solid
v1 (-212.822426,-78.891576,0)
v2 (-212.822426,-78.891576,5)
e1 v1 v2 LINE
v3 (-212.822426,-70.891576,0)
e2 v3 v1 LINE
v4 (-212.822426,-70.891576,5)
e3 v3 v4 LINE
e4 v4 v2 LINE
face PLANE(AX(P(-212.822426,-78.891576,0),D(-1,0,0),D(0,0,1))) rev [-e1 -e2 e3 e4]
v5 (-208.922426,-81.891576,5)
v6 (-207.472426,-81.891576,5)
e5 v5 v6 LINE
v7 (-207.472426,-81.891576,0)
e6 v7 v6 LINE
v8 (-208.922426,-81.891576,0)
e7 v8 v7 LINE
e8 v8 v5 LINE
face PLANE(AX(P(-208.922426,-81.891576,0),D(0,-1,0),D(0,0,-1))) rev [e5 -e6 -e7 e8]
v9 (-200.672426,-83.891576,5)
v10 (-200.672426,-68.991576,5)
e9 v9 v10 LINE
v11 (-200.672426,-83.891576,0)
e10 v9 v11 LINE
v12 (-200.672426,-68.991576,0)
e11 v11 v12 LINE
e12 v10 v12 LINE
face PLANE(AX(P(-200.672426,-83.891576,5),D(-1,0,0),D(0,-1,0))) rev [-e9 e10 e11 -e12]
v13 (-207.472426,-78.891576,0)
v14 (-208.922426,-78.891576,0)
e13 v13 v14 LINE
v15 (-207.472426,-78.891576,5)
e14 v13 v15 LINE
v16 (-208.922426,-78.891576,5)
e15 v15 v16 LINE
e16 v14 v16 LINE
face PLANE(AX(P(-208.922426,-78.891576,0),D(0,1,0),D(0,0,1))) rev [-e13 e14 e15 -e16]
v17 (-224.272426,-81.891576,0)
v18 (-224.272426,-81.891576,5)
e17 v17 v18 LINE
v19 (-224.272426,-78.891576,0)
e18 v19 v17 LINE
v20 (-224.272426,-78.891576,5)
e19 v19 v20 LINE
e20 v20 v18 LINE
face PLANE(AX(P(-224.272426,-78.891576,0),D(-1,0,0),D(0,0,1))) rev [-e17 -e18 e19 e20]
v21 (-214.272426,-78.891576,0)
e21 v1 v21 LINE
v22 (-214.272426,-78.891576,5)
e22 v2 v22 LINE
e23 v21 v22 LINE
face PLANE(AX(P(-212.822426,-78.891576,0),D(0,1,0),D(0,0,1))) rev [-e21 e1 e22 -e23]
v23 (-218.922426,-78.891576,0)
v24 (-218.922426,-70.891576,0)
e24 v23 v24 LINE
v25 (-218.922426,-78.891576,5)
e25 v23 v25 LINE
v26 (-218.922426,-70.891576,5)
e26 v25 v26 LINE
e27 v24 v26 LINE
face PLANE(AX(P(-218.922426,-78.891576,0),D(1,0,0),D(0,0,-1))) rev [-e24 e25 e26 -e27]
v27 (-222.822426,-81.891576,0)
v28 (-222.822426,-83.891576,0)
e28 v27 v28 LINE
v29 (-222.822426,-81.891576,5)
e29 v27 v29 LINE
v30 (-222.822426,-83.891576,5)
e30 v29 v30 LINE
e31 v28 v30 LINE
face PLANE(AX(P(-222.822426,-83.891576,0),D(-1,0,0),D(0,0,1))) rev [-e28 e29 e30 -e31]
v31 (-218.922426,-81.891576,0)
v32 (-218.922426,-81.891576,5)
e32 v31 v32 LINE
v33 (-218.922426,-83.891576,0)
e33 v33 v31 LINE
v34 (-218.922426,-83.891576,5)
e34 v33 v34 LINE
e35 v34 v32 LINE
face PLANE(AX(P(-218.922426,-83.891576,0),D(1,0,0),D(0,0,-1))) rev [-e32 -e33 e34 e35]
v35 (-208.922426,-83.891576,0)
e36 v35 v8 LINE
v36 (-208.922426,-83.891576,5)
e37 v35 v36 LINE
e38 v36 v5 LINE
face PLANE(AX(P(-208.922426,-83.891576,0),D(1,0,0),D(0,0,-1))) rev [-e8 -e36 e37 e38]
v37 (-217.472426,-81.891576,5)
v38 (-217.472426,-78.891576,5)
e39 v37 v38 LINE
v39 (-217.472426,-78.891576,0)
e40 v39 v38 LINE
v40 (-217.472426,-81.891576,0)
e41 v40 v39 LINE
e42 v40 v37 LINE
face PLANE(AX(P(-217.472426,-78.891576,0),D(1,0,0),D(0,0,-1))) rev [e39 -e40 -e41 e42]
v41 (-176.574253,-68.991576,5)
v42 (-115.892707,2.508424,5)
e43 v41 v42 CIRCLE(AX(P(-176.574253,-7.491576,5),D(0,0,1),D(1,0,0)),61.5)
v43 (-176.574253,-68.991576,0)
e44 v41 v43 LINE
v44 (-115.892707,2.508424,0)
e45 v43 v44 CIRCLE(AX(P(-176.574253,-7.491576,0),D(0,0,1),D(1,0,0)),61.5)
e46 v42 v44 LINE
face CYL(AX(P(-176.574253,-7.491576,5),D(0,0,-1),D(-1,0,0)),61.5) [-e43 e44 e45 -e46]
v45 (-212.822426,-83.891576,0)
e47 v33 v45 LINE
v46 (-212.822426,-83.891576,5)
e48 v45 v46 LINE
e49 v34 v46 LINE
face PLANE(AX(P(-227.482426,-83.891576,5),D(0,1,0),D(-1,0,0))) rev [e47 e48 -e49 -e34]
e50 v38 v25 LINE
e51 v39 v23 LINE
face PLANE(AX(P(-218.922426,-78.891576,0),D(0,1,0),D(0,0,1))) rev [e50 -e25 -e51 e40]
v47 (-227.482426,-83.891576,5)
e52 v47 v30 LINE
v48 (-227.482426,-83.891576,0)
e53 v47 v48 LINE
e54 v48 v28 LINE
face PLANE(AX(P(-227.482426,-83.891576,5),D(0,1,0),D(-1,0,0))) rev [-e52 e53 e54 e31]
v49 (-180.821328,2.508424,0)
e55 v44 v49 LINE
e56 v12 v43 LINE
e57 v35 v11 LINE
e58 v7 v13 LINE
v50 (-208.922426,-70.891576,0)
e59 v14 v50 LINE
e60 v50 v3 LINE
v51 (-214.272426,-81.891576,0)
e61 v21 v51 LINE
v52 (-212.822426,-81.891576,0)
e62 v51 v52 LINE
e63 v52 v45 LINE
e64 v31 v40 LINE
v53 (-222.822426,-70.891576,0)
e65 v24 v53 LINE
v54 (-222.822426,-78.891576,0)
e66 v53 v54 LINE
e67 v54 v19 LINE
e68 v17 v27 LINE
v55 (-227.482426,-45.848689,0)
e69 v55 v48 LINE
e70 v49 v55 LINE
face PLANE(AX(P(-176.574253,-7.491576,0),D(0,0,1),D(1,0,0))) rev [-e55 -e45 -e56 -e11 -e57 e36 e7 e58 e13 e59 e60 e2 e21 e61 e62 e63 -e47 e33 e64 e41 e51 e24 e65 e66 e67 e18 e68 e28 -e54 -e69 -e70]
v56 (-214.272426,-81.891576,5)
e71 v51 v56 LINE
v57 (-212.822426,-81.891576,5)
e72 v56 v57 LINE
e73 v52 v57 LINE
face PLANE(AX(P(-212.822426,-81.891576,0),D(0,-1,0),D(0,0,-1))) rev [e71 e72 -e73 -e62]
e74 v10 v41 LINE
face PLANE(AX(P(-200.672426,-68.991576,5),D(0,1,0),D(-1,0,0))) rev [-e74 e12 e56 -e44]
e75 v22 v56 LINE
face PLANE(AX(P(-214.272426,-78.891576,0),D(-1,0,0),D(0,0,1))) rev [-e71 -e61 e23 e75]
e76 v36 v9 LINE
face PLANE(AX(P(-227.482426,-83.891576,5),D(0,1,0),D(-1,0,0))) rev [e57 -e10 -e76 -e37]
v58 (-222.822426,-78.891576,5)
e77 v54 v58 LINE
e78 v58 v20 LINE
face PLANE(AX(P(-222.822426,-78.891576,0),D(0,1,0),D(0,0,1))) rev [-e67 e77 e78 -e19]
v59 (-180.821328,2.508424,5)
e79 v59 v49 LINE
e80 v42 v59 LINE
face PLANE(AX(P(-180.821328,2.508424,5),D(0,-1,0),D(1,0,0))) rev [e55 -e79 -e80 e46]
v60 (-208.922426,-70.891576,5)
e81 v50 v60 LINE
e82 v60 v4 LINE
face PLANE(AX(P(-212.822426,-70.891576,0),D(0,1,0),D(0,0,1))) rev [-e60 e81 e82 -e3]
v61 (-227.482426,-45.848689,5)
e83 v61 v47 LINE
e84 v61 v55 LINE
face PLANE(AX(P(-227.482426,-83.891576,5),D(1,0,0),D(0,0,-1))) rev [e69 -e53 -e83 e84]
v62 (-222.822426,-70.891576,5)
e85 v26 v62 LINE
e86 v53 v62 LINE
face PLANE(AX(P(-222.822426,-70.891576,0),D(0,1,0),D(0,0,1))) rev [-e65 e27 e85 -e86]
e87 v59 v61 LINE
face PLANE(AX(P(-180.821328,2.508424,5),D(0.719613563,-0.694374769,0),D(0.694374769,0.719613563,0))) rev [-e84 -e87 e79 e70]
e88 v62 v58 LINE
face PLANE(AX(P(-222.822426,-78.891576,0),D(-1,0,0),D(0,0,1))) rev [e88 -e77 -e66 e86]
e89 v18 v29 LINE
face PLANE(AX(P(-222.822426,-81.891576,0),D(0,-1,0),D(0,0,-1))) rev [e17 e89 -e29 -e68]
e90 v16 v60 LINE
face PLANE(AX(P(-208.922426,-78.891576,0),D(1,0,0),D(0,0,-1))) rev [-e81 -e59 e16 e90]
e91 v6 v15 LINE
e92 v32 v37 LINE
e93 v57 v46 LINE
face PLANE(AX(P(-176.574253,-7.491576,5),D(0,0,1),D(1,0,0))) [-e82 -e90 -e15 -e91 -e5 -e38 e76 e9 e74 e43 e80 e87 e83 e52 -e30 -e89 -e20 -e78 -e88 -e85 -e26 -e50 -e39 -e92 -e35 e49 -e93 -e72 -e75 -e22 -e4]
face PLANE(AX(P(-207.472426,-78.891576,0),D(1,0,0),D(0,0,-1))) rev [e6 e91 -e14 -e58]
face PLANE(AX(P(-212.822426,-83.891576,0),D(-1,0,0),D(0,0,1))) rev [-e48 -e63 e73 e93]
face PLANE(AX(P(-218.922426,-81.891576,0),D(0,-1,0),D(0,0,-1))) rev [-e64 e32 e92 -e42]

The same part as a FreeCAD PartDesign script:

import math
import FreeCAD as App
import Part
import Sketcher

V = App.Vector
Q = App.Units.Quantity


def add_polygon(sketch, points):
    """Adds a closed chain of lines whose ends are joined by coincident constraints."""
    first, n = sketch.GeometryCount, len(points)
    for a, b in zip(points, points[1:] + points[:1]):
        sketch.addGeometry(Part.LineSegment(App.Vector(*a, 0), App.Vector(*b, 0)), False)
    for i in range(n):
        sketch.addConstraint(Sketcher.Constraint("Coincident", first + i, 2, first + (i + 1) % n, 1))

doc = App.newDocument("Part")
body = doc.addObject("PartDesign::Body", "Body")

# Sketch on XY plane
sketch1 = doc.addObject("Sketcher::SketchObject", "Sketch")
body.addObject(sketch1)
sketch1.AttachmentSupport = (doc.XY_Plane, [""])
sketch1.MapMode = "FlatFace"
sketch1.addGeometry(Part.LineSegment(V(-227, -84, 0), V(-201, -84, 0)), False)
sketch1.addGeometry(Part.LineSegment(V(-201, -84, 0), V(-201, -69, 0)), False)
sketch1.addGeometry(Part.LineSegment(V(-201, -69, 0), V(-177, -69, 0)), False)
sketch1.addGeometry(Part.ArcOfCircle(Part.Circle(V(-177, -7, 0), V(0, 0, 1), 62), math.radians(-90), math.radians(9)), False)
sketch1.addGeometry(Part.LineSegment(V(-116, 3, 0), V(-181, 3, 0)), False)
sketch1.addGeometry(Part.LineSegment(V(-181, 3, 0), V(-227, -46, 0)), False)
sketch1.addGeometry(Part.LineSegment(V(-227, -46, 0), V(-227, -84, 0)), False)
sketch1.addConstraint(Sketcher.Constraint("Coincident", 0, 2, 1, 1))
sketch1.addConstraint(Sketcher.Constraint("Coincident", 1, 2, 2, 1))
sketch1.addConstraint(Sketcher.Constraint("Tangent", 2, 2, 3, 1))
sketch1.addConstraint(Sketcher.Constraint("Coincident", 3, 2, 4, 1))
sketch1.addConstraint(Sketcher.Constraint("Coincident", 4, 2, 5, 1))
sketch1.addConstraint(Sketcher.Constraint("Coincident", 5, 2, 6, 1))
sketch1.addConstraint(Sketcher.Constraint("Coincident", 6, 2, 0, 1))
sketch1.addConstraint(Sketcher.Constraint("Horizontal", 0))
sketch1.addConstraint(Sketcher.Constraint("Vertical", 1))
sketch1.addConstraint(Sketcher.Constraint("Horizontal", 2))
sketch1.addConstraint(Sketcher.Constraint("Horizontal", 4))
sketch1.addConstraint(Sketcher.Constraint("Vertical", 6))
sketch1.addConstraint(Sketcher.Constraint("Radius", 3, Q("61.5 mm")))
sketch1.addConstraint(Sketcher.Constraint("DistanceY", 1, 1, 1, 2, Q("14.9 mm")))
sketch1.addConstraint(Sketcher.Constraint("DistanceY", 3, 3, 3, 2, Q("10 mm")))
sketch1.addConstraint(Sketcher.Constraint("DistanceX", 0, 1, 0, 2, Q("26.81 mm")))
sketch1.addConstraint(Sketcher.Constraint("DistanceX", 4, 2, 4, 1, Q("64.92862 mm")))
sketch1.addConstraint(Sketcher.Constraint("DistanceX", 1, 2, 4, 2, Q("19.851098 mm")))
sketch1.addConstraint(Sketcher.Constraint("DistanceY", 6, 2, 6, 1, Q("38.042887 mm")))
sketch1.addConstraint(Sketcher.Constraint("DistanceY", 5, 2, -1, 1, Q("45.848689 mm")))
sketch1.addConstraint(Sketcher.Constraint("DistanceX", 3, 3, -1, 1, Q("176.574253 mm")))
pad1 = doc.addObject("PartDesign::Pad", "Pad")
body.addObject(pad1)
pad1.Profile = sketch1
pad1.Length = 5

# Sketch on XY plane
sketch2 = doc.addObject("Sketcher::SketchObject", "Sketch001")
body.addObject(sketch2)
sketch2.AttachmentSupport = (doc.XY_Plane, [""])
sketch2.MapMode = "FlatFace"
sketch2.AttachmentOffset = App.Placement(V(0, 0, 5), App.Rotation())
add_polygon(sketch2, [(-212.8, -83.9), (-208.9, -83.9), (-208.9, -81.9), (-207.5, -81.9), (-207.5, -78.9), (-208.9, -78.9), (-208.9, -70.9), (-212.8, -70.9), (-212.8, -78.9), (-214.3, -78.9), (-214.3, -81.9), (-212.8, -81.9)])  # lines 0-11
add_polygon(sketch2, [(-222.8, -83.9), (-218.9, -83.9), (-218.9, -81.9), (-217.5, -81.9), (-217.5, -78.9), (-218.9, -78.9), (-218.9, -70.9), (-222.8, -70.9), (-222.8, -78.9), (-224.3, -78.9), (-224.3, -81.9), (-222.8, -81.9)])  # lines 12-23
sketch2.addConstraint(Sketcher.Constraint("Horizontal", 0))
sketch2.addConstraint(Sketcher.Constraint("Vertical", 1))
sketch2.addConstraint(Sketcher.Constraint("Horizontal", 2))
sketch2.addConstraint(Sketcher.Constraint("Vertical", 3))
sketch2.addConstraint(Sketcher.Constraint("Horizontal", 4))
sketch2.addConstraint(Sketcher.Constraint("Vertical", 5))
sketch2.addConstraint(Sketcher.Constraint("Horizontal", 6))
sketch2.addConstraint(Sketcher.Constraint("Vertical", 7))
sketch2.addConstraint(Sketcher.Constraint("Horizontal", 8))
sketch2.addConstraint(Sketcher.Constraint("Vertical", 9))
sketch2.addConstraint(Sketcher.Constraint("Horizontal", 10))
sketch2.addConstraint(Sketcher.Constraint("Vertical", 11))
sketch2.addConstraint(Sketcher.Constraint("Horizontal", 12))
sketch2.addConstraint(Sketcher.Constraint("Vertical", 13))
sketch2.addConstraint(Sketcher.Constraint("Horizontal", 14))
sketch2.addConstraint(Sketcher.Constraint("Vertical", 15))
sketch2.addConstraint(Sketcher.Constraint("Horizontal", 16))
sketch2.addConstraint(Sketcher.Constraint("Vertical", 17))
sketch2.addConstraint(Sketcher.Constraint("Horizontal", 18))
sketch2.addConstraint(Sketcher.Constraint("Vertical", 19))
sketch2.addConstraint(Sketcher.Constraint("Horizontal", 20))
sketch2.addConstraint(Sketcher.Constraint("Vertical", 21))
sketch2.addConstraint(Sketcher.Constraint("Horizontal", 22))
sketch2.addConstraint(Sketcher.Constraint("Vertical", 23))
sketch2.addConstraint(Sketcher.Constraint("Horizontal", 4, 2, 7, 2))
sketch2.addConstraint(Sketcher.Constraint("Horizontal", 2, 2, 9, 2))
sketch2.addConstraint(Sketcher.Constraint("Horizontal", 11, 2, 12, 2))
sketch2.addConstraint(Sketcher.Constraint("Horizontal", 10, 2, 13, 2))
sketch2.addConstraint(Sketcher.Constraint("Horizontal", 8, 2, 15, 2))
sketch2.addConstraint(Sketcher.Constraint("Horizontal", 6, 2, 17, 2))
sketch2.addConstraint(Sketcher.Constraint("Horizontal", 16, 2, 19, 2))
sketch2.addConstraint(Sketcher.Constraint("Horizontal", 14, 2, 21, 2))
sketch2.addConstraint(Sketcher.Constraint("Vertical", 1, 2, 4, 2))
sketch2.addConstraint(Sketcher.Constraint("Vertical", 7, 2, 10, 2))
sketch2.addConstraint(Sketcher.Constraint("Vertical", 13, 2, 16, 2))
sketch2.addConstraint(Sketcher.Constraint("Vertical", 19, 2, 22, 2))
sketch2.addConstraint(Sketcher.Constraint("Equal", 4, 8))
sketch2.addConstraint(Sketcher.Constraint("Equal", 6, 12))
sketch2.addConstraint(Sketcher.Constraint("Equal", 10, 14))
sketch2.addConstraint(Sketcher.Constraint("Equal", 16, 20))
sketch2.addConstraint(Sketcher.Constraint("DistanceY", 1, 1, 1, 2, Q("2 mm")))
sketch2.addConstraint(Sketcher.Constraint("DistanceY", 3, 1, 3, 2, Q("3 mm")))
sketch2.addConstraint(Sketcher.Constraint("DistanceY", 5, 1, 5, 2, Q("8 mm")))
sketch2.addConstraint(Sketcher.Constraint("DistanceX", 0, 1, 0, 2, Q("3.9 mm")))
sketch2.addConstraint(Sketcher.Constraint("DistanceX", 17, 2, 5, 2, Q("10 mm")))
sketch2.addConstraint(Sketcher.Constraint("DistanceX", 2, 1, 2, 2, Q("1.45 mm")))
sketch2.addConstraint(Sketcher.Constraint("DistanceX", 0, 2, -1, 1, Q("208.922426 mm")))
sketch2.addConstraint(Sketcher.Constraint("DistanceY", 0, 2, -1, 1, Q("83.891576 mm")))
pocket1 = doc.addObject("PartDesign::Pocket", "Pocket")
body.addObject(pocket1)
pocket1.Profile = sketch2
pocket1.Length = 5

doc.recompute()
